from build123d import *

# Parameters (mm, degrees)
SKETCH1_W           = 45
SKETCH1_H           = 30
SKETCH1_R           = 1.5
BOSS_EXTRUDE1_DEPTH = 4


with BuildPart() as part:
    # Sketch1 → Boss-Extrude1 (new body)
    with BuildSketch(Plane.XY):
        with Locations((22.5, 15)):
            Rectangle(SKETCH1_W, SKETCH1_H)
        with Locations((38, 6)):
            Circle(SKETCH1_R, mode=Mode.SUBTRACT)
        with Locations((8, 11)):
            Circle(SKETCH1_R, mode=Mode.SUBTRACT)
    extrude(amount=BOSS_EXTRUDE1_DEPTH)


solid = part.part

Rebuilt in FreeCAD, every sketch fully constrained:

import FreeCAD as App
import Part
import Sketcher
from FreeCAD import Vector


def add_polygon(sketch, points):
    """Adds a closed chain of lines whose ends are joined by coincident constraints."""
    first, n = sketch.GeometryCount, len(points)
    for a, b in zip(points, points[1:] + points[:1]):
        sketch.addGeometry(Part.LineSegment(App.Vector(*a, 0), App.Vector(*b, 0)), False)
    for i in range(n):
        sketch.addConstraint(Sketcher.Constraint("Coincident", first + i, 2, first + (i + 1) % n, 1))

doc = App.newDocument("Part")
body = doc.addObject("PartDesign::Body", "Body")

# Sketch on XY plane
sketch1 = body.newObject("Sketcher::SketchObject", "Sketch")
sketch1.AttachmentSupport = (doc.getObject("XY_Plane"), [""])
sketch1.MapMode = "FlatFace"
add_polygon(sketch1, [(0, 30), (0, 0), (45, 0), (45, 30)])  # lines 0-3
sketch1.addGeometry(Part.Circle(Vector(38, 6, 0), Vector(0, 0, 1), 1.5), False)  # 4
sketch1.addGeometry(Part.Circle(Vector(8, 11, 0), Vector(0, 0, 1), 1.5), False)  # 5
sketch1.addConstraint([
    Sketcher.Constraint("Vertical", 0),
    Sketcher.Constraint("Horizontal", 1),
    Sketcher.Constraint("Vertical", 2),
    Sketcher.Constraint("Horizontal", 3),
    Sketcher.Constraint("Coincident", 0, 2, -1, 1),
    Sketcher.Constraint("Equal", 4, 5),
    Sketcher.Constraint("Diameter", 4, 3.0),
    Sketcher.Constraint("DistanceX", 1, 1, 1, 2, 45.0),
    Sketcher.Constraint("DistanceY", 0, 2, 0, 1, 30.0),
    Sketcher.Constraint("DistanceX", -1, 1, 4, 3, 38.0),
    Sketcher.Constraint("DistanceY", -1, 1, 4, 3, 6.0),
    Sketcher.Constraint("DistanceX", -1, 1, 5, 3, 8.0),
    Sketcher.Constraint("DistanceY", -1, 1, 5, 3, 11.0),
])
pad1 = body.newObject("PartDesign::Pad", "Pad")
pad1.Profile = sketch1
pad1.Length = 4

doc.recompute()
